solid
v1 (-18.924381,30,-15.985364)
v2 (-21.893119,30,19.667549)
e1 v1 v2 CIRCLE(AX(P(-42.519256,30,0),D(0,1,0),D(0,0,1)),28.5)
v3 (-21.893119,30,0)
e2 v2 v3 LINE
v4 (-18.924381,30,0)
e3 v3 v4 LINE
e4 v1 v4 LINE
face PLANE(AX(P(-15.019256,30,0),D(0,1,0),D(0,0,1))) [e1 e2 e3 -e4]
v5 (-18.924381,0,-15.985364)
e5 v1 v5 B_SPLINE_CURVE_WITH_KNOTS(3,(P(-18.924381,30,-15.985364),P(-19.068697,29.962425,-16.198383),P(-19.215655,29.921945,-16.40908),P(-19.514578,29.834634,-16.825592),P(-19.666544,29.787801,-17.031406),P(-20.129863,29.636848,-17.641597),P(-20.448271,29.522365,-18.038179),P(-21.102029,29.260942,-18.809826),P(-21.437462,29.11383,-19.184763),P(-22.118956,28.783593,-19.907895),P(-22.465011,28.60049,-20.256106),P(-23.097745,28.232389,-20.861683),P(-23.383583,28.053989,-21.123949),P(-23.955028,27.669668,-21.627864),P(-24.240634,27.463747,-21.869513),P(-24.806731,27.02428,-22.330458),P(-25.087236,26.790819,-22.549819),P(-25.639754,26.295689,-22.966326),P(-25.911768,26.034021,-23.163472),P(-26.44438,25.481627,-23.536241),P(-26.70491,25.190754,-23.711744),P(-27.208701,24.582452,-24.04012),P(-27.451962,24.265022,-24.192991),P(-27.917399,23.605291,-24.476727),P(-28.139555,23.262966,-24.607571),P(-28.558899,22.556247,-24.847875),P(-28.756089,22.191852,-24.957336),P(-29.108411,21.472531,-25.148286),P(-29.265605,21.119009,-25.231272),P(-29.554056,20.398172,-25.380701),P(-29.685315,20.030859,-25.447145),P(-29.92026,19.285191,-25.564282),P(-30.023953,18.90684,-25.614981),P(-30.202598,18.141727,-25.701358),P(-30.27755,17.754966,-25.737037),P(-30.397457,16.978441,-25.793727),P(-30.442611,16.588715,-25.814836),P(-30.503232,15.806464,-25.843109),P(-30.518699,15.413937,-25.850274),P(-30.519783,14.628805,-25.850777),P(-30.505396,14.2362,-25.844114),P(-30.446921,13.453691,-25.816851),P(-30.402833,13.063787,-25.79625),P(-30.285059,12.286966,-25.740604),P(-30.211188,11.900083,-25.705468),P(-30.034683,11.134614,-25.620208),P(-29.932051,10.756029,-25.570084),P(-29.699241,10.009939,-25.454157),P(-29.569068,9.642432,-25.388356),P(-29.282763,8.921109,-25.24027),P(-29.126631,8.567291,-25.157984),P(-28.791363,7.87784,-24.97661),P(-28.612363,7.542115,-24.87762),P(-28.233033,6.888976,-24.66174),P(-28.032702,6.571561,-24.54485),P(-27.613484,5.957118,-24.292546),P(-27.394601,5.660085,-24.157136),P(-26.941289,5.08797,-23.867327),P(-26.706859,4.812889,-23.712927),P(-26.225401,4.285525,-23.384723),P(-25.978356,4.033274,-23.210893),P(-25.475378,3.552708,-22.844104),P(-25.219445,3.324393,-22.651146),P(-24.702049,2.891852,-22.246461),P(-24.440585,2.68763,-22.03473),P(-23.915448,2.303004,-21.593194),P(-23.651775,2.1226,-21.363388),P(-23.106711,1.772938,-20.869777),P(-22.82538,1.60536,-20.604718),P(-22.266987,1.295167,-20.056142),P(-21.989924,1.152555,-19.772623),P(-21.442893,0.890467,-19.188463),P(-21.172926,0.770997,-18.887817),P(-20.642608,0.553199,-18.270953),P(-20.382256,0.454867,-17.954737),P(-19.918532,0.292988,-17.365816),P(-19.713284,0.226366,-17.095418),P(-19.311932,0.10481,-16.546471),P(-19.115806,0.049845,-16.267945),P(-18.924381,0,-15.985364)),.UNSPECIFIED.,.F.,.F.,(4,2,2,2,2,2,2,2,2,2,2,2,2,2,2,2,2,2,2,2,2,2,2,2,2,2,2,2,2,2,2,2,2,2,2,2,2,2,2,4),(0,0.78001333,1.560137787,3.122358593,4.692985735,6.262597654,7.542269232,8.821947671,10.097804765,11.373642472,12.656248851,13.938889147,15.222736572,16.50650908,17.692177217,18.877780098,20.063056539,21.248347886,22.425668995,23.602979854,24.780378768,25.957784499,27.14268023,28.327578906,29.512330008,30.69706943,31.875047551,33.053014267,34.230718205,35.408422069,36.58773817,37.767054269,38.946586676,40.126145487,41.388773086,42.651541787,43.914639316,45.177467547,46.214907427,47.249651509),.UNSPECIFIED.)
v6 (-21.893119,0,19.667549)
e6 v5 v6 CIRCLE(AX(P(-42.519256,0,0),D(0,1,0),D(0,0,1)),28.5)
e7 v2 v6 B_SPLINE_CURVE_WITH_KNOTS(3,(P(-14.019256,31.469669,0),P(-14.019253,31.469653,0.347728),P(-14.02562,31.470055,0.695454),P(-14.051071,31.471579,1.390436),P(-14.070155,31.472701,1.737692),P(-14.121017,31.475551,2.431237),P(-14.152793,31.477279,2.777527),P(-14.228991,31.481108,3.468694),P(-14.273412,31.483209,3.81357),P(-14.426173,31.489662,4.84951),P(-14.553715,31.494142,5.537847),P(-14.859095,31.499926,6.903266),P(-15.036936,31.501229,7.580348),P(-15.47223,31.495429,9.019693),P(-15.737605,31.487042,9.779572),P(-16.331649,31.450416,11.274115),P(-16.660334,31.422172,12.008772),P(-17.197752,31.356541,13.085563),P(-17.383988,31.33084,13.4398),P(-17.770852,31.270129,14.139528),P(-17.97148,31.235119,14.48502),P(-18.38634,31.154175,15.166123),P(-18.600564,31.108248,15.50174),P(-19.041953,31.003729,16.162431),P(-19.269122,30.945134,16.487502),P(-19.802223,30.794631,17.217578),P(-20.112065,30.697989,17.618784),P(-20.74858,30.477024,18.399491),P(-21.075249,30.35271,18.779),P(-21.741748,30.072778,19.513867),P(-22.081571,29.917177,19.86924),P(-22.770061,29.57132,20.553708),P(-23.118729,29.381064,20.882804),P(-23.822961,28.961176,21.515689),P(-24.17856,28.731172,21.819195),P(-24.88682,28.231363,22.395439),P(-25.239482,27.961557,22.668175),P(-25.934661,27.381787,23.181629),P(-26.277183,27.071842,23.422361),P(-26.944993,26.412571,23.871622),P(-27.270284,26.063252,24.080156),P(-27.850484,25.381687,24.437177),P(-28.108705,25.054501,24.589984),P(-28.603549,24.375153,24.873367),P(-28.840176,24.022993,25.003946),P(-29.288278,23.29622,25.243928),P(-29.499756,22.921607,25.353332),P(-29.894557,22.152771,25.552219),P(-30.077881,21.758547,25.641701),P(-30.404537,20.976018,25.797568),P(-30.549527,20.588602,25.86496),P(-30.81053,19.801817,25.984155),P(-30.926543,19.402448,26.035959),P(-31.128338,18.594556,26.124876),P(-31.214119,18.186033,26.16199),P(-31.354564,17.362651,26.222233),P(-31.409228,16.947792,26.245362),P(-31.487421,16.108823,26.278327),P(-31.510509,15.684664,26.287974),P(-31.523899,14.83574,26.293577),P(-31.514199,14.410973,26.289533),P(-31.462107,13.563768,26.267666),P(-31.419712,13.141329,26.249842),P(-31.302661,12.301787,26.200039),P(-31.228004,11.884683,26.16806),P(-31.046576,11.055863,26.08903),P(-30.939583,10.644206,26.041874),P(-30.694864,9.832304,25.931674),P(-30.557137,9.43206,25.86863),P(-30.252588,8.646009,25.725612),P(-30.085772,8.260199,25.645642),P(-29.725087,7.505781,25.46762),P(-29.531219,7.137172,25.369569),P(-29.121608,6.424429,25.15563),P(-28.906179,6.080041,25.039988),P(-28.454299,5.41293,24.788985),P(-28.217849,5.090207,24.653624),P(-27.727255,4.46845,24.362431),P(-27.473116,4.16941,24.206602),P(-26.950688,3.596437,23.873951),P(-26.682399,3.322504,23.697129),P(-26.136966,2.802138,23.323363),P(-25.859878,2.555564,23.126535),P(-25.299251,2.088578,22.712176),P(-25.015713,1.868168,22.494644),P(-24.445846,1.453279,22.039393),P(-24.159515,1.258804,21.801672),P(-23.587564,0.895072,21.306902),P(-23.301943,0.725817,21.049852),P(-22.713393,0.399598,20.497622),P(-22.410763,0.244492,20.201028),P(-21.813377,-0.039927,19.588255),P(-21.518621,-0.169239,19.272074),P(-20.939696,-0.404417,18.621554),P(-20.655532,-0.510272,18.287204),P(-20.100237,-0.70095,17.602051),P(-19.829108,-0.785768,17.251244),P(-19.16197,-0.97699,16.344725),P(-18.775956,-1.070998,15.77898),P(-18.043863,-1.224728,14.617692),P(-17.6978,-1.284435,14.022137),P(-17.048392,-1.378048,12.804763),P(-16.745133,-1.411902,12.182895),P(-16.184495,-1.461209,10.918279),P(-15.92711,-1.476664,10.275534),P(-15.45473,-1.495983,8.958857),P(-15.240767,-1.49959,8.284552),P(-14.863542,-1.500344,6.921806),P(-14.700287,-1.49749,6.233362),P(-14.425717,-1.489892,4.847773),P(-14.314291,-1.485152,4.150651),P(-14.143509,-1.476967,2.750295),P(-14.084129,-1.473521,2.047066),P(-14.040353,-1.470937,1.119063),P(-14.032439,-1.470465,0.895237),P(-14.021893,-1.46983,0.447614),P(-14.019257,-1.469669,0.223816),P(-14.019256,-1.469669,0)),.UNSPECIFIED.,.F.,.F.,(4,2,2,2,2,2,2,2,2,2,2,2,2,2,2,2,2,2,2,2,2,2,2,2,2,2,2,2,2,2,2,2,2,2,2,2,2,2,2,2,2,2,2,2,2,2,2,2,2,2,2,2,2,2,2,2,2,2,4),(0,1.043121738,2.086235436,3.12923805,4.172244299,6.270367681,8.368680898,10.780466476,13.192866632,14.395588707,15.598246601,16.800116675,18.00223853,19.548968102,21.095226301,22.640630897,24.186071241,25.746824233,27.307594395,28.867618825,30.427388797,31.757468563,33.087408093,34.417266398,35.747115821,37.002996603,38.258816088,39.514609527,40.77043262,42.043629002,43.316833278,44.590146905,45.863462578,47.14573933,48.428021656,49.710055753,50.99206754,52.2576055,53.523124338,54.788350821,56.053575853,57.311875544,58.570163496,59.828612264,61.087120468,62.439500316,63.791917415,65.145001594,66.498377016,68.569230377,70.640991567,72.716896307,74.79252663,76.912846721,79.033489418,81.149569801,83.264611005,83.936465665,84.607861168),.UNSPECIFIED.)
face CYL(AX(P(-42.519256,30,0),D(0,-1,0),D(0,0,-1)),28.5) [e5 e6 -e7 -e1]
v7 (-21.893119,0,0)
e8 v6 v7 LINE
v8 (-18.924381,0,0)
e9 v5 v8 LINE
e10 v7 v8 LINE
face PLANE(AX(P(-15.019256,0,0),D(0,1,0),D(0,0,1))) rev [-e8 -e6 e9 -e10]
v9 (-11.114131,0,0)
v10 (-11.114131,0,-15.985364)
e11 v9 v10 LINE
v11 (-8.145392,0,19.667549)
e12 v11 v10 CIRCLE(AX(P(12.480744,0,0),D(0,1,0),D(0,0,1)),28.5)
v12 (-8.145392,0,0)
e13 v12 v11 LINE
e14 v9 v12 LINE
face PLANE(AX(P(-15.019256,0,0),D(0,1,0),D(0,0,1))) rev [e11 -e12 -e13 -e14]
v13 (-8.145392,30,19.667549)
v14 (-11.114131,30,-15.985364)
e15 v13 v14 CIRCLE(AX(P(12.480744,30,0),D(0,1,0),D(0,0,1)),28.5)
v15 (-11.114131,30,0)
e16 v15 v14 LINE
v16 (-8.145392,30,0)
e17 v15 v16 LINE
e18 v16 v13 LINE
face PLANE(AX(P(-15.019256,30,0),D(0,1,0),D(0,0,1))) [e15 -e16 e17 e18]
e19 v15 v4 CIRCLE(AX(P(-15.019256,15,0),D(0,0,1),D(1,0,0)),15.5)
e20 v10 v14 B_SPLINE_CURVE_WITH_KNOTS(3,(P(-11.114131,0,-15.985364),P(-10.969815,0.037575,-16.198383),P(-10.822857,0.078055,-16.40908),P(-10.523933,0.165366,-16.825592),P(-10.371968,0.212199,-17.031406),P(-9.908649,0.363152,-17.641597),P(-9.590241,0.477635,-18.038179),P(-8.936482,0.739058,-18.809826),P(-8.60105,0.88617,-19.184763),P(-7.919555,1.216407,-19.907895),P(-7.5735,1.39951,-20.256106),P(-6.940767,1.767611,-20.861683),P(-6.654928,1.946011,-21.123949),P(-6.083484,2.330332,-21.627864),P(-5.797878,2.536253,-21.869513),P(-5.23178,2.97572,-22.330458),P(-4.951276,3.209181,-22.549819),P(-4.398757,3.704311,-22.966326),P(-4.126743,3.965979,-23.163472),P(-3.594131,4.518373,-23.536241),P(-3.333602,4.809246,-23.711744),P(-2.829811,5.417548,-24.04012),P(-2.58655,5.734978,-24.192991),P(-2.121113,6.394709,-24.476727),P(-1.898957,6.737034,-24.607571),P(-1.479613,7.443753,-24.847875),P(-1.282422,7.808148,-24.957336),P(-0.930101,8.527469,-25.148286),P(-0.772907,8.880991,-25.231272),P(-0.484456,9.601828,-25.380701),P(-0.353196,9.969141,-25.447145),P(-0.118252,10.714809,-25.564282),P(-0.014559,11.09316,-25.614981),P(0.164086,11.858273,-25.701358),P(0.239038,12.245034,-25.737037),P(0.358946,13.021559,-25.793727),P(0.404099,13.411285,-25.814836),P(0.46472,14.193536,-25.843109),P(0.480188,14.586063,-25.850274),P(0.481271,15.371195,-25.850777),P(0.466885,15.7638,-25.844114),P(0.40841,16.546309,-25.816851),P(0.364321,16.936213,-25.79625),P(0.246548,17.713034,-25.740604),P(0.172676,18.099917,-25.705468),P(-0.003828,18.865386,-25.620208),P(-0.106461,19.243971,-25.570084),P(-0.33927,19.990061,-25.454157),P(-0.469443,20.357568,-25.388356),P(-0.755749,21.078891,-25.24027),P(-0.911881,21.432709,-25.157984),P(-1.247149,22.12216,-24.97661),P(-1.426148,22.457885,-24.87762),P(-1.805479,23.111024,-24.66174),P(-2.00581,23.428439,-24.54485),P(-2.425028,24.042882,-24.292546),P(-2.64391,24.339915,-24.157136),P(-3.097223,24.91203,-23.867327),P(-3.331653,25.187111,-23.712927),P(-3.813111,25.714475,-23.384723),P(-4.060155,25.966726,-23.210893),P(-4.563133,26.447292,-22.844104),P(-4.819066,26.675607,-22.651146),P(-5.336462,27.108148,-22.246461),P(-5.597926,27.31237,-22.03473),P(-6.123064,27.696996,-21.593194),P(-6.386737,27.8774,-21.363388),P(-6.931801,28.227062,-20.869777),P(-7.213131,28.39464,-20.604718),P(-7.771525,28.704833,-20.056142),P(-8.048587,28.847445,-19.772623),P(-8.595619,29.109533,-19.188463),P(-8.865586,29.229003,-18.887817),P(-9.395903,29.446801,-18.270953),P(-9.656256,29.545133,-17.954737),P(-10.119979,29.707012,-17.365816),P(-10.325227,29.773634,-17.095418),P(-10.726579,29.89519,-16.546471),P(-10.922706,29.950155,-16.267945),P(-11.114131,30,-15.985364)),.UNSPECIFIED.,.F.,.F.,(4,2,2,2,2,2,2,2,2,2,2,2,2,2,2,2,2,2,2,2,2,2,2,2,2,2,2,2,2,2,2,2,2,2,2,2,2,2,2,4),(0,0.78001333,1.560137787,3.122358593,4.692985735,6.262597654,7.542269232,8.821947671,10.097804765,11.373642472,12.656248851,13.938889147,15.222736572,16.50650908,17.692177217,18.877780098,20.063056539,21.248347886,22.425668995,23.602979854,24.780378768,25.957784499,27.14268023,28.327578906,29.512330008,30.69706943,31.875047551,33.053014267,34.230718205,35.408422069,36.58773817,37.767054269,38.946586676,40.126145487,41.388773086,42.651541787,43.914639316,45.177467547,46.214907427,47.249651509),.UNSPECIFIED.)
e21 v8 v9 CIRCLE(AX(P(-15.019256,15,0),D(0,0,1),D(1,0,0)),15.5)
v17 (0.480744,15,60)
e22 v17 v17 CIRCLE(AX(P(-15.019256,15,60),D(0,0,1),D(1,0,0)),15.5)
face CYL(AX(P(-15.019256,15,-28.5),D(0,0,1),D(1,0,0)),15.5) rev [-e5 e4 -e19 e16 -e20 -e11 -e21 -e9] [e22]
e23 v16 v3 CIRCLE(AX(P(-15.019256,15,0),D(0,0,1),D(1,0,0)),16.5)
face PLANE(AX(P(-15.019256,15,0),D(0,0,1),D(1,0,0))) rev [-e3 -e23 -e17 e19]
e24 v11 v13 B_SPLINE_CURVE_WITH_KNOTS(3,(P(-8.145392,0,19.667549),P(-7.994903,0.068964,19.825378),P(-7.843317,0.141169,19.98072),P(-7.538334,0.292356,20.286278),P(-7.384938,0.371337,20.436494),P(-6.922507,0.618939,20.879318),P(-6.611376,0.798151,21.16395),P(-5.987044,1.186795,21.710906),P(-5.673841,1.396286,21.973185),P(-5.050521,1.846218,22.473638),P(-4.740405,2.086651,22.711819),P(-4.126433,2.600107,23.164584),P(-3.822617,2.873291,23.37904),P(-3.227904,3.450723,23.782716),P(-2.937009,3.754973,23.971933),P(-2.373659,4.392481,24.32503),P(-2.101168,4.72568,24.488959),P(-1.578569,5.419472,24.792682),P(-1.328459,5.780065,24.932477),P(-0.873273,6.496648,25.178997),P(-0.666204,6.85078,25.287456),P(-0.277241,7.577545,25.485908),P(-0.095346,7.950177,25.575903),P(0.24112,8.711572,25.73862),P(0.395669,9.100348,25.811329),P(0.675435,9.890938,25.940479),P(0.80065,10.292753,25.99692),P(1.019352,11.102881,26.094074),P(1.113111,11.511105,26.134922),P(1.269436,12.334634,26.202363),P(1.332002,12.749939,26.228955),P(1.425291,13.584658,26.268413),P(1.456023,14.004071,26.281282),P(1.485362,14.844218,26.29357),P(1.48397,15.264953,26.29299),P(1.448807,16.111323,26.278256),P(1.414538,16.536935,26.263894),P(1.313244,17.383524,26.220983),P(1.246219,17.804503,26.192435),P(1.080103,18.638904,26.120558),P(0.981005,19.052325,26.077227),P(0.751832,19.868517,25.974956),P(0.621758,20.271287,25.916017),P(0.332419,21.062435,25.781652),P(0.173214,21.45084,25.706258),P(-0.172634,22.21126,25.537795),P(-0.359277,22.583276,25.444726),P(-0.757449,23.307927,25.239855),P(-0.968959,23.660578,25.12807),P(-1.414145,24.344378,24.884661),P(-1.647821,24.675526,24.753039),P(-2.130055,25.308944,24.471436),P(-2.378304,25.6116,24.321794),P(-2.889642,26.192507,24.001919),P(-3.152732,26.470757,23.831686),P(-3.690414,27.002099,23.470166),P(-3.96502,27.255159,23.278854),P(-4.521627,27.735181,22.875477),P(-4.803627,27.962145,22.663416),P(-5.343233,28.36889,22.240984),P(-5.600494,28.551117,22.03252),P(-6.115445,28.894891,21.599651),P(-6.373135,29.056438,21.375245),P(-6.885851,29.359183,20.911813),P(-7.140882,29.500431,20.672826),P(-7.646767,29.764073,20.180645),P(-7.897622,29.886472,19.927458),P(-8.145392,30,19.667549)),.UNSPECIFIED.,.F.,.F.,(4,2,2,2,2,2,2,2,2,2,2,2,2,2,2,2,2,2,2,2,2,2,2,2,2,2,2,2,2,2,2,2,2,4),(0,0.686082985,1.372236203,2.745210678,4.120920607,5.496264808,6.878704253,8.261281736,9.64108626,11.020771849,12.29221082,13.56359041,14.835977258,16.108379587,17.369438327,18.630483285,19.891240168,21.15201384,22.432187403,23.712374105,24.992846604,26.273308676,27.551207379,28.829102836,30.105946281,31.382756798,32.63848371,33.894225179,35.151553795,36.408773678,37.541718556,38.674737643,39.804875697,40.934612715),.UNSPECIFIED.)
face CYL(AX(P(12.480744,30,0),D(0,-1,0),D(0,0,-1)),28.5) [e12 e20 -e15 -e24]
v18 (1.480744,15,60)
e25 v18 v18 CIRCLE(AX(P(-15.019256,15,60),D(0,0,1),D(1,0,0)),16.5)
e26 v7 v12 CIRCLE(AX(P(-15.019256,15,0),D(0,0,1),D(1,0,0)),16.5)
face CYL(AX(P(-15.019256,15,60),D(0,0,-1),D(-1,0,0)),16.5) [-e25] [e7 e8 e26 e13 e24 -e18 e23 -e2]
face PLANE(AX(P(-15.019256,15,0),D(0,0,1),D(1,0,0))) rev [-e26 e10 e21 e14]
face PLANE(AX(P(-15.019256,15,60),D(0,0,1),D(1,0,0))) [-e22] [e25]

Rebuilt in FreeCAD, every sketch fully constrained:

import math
import FreeCAD as App
import Part
import Sketcher

V = App.Vector
Q = App.Units.Quantity

doc = App.newDocument("Part")
body = doc.addObject("PartDesign::Body", "Body")

# Sketch on XZ plane
sketch1 = doc.addObject("Sketcher::SketchObject", "Sketch")
body.addObject(sketch1)
sketch1.AttachmentSupport = (doc.XZ_Plane, [""])
sketch1.MapMode = "FlatFace"
sketch1.addGeometry(Part.ArcOfCircle(Part.Circle(V(-43, 0, 0), V(0, 0, 1), 28), math.radians(15), math.radians(345)), False)
sketch1.addGeometry(Part.ArcOfCircle(Part.Circle(V(12, 0, 0), V(0, 0, 1), 28), math.radians(-165), math.radians(165)), False)
sketch1.addConstraint(Sketcher.Constraint("Coincident", 0, 1, 1, 2))
sketch1.addConstraint(Sketcher.Constraint("Coincident", 1, 1, 0, 2))
sketch1.addConstraint(Sketcher.Constraint("Equal", 0, 1))
sketch1.addConstraint(Sketcher.Constraint("Symmetric", 0, 1, 1, 1, -1))
sketch1.addConstraint(Sketcher.Constraint("Radius", 0, Q("28.5 mm")))
sketch1.addConstraint(Sketcher.Constraint("DistanceX", 0, 3, 1, 3, Q("55 mm")))
sketch1.addConstraint(Sketcher.Constraint("DistanceX", 0, 3, -1, 1, Q("42.519256 mm")))
pad1 = doc.addObject("PartDesign::Pad", "Pad")
body.addObject(pad1)
pad1.Profile = sketch1
pad1.Length = 30
pad1.Reversed = True

# Sketch on XY plane
sketch2 = doc.addObject("Sketcher::SketchObject", "Sketch001")
body.addObject(sketch2)
sketch2.AttachmentSupport = (doc.XY_Plane, [""])
sketch2.MapMode = "FlatFace"
sketch2.addGeometry(Part.Circle(V(-15, 15, 0), V(0, 0, 1), 16), False)
sketch2.addConstraint(Sketcher.Constraint("Diameter", 0, Q("33 mm")))
sketch2.addConstraint(Sketcher.Constraint("DistanceY", -1, 1, 0, 3, Q("15 mm")))
sketch2.addConstraint(Sketcher.Constraint("DistanceX", 0, 3, -1, 1, Q("15.019256 mm")))
pad2 = doc.addObject("PartDesign::Pad", "Pad001")
body.addObject(pad2)
pad2.Profile = sketch2
pad2.Length = 60

# Sketch on XY plane
sketch3 = doc.addObject("Sketcher::SketchObject", "Sketch002")
body.addObject(sketch3)
sketch3.AttachmentSupport = (doc.XY_Plane, [""])
sketch3.MapMode = "FlatFace"
sketch3.AttachmentOffset = App.Placement(V(0, 0, 60), App.Rotation())
sketch3.addGeometry(Part.Circle(V(-15, 15, 0), V(0, 0, 1), 16), False)
sketch3.addConstraint(Sketcher.Constraint("Diameter", 0, Q("31 mm")))
sketch3.addConstraint(Sketcher.Constraint("DistanceY", -1, 1, 0, 3, Q("15 mm")))
sketch3.addConstraint(Sketcher.Constraint("DistanceX", 0, 3, -1, 1, Q("15.019256 mm")))
pocket1 = doc.addObject("PartDesign::Pocket", "Pocket")
body.addObject(pocket1)
pocket1.Profile = sketch3
pocket1.Type = "ThroughAll"

doc.recompute()
